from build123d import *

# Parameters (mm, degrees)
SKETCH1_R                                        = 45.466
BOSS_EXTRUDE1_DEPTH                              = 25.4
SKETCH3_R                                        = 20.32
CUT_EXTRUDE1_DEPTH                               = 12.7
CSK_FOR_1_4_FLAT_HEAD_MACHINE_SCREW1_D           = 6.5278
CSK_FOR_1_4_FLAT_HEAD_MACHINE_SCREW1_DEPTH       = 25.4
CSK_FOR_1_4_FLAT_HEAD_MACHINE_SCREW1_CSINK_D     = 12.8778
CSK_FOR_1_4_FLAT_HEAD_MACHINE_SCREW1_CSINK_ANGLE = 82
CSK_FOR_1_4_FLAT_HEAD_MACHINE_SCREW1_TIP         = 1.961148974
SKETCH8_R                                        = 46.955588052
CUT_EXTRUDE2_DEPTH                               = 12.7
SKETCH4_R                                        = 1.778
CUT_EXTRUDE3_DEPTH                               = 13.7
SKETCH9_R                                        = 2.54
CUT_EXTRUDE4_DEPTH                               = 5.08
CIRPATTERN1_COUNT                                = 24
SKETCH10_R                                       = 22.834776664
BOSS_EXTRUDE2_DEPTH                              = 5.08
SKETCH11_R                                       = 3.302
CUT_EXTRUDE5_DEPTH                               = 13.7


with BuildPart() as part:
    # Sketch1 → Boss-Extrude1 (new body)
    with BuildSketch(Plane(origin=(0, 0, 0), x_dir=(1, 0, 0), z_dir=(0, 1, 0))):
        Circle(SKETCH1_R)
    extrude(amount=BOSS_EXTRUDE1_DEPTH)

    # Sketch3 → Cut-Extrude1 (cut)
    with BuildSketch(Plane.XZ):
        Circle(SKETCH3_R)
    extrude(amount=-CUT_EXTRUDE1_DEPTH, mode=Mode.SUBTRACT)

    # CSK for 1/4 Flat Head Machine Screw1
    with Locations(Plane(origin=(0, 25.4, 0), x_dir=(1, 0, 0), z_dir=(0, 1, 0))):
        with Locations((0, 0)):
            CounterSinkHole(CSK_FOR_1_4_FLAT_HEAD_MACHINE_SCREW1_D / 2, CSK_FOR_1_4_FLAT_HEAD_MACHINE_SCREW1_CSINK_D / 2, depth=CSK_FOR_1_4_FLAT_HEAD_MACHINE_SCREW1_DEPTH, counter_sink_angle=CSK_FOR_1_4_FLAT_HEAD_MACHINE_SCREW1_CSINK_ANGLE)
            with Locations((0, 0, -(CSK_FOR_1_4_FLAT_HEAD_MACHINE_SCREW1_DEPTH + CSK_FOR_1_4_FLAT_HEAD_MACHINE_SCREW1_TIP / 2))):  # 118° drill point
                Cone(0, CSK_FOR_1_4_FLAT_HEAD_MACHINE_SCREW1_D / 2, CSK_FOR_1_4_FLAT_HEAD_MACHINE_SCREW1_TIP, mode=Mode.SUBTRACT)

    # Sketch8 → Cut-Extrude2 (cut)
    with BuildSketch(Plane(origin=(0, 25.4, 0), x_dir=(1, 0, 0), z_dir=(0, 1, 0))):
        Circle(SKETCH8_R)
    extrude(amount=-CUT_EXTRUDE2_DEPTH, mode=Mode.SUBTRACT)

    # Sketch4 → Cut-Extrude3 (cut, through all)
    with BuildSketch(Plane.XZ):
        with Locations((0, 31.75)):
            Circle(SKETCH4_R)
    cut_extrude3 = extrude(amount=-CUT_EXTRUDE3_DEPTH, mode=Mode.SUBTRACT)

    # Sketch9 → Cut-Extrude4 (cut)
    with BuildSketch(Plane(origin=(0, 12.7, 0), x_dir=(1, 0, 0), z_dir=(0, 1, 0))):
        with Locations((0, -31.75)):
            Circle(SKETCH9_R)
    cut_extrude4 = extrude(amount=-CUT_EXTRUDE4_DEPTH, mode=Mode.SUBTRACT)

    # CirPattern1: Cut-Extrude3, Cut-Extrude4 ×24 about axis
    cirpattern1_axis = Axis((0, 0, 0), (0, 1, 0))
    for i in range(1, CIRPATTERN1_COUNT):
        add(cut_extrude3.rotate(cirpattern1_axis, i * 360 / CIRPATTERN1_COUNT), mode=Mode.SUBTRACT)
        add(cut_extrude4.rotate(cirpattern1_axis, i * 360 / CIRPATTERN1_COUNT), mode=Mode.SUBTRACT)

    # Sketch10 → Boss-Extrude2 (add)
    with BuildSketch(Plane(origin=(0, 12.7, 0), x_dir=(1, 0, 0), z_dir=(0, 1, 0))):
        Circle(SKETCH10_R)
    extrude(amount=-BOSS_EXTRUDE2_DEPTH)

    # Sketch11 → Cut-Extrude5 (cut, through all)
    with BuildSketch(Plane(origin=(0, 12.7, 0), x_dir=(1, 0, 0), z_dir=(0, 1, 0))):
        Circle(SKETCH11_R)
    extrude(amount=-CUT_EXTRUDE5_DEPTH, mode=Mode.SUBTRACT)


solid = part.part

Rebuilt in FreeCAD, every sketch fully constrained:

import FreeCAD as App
import Part
import Sketcher

V = App.Vector
Q = App.Units.Quantity

doc = App.newDocument("Part")
params = doc.addObject("Spreadsheet::Sheet", "Params")
for row, (alias, value) in enumerate([
    ("sketch1_diameter", "3.58 in"),
    ("pad1_length", "1 in"),
    ("sketch2_diameter", "1.6 in"),
    ("pocket1_length", "0.5 in"),
    ("sketch3_diameter", "0.257 in"),
    ("hole_diameter", "0.257 in"),
    ("hole_depth", "1 in"),
    ("hole_csink_diameter", "0.507 in"),
    ("pocket2_length", "0.5 in"),
    ("sketch5_diameter", "0.14 in"),
    ("sketch6_diameter", "0.2 in"),
    ("pocket4_length", "0.2 in"),
    ("pad2_length", "0.2 in"),
    ("sketch8_diameter", "0.26 in"),
], start=1):
    params.set(f"A{row}", alias)
    params.set(f"B{row}", "=" + value)
    params.setAlias(f"B{row}", alias)

body = doc.addObject("PartDesign::Body", "Body")

# Sketch on XZ plane
sketch1 = doc.addObject("Sketcher::SketchObject", "Sketch")
body.addObject(sketch1)
sketch1.AttachmentSupport = (doc.XZ_Plane, [""])
sketch1.MapMode = "FlatFace"
sketch1.addGeometry(Part.Circle(V(0, 0, 0), V(0, 0, 1), 45), False)
sketch1.addConstraint(Sketcher.Constraint("Coincident", 0, 3, -1, 1))
sketch1.addConstraint(Sketcher.Constraint("Diameter", 0, Q("3.58 in")))
sketch1.setExpression("Constraints[1]", "Params.sketch1_diameter")
pad1 = doc.addObject("PartDesign::Pad", "Pad")
body.addObject(pad1)
pad1.Profile = sketch1
pad1.setExpression("Length", "Params.pad1_length")
pad1.Reversed = True

# Sketch on XZ plane
sketch2 = doc.addObject("Sketcher::SketchObject", "Sketch001")
body.addObject(sketch2)
sketch2.AttachmentSupport = (doc.XZ_Plane, [""])
sketch2.MapMode = "FlatFace"
sketch2.addGeometry(Part.Circle(V(0, 0, 0), V(0, 0, 1), 20), False)
sketch2.addConstraint(Sketcher.Constraint("Coincident", 0, 3, -1, 1))
sketch2.addConstraint(Sketcher.Constraint("Diameter", 0, Q("1.6 in")))
sketch2.setExpression("Constraints[1]", "Params.sketch2_diameter")
pocket1 = doc.addObject("PartDesign::Pocket", "Pocket")
body.addObject(pocket1)
pocket1.Profile = sketch2
pocket1.setExpression("Length", "Params.pocket1_length")

# Sketch on XZ plane
sketch3 = doc.addObject("Sketcher::SketchObject", "Sketch002")
body.addObject(sketch3)
sketch3.AttachmentSupport = (doc.XZ_Plane, [""])
sketch3.MapMode = "FlatFace"
sketch3.AttachmentOffset = App.Placement(V(0, 0, -1 * 25.4), App.Rotation())
sketch3.addGeometry(Part.Circle(V(0, 0, 0), V(0, 0, 1), 3.3), False)
sketch3.addConstraint(Sketcher.Constraint("Coincident", 0, 3, -1, 1))
sketch3.addConstraint(Sketcher.Constraint("Diameter", 0, Q("0.257 in")))
sketch3.setExpression("Constraints[1]", "Params.sketch3_diameter")
doc.recompute()
hole = doc.addObject("PartDesign::Hole", "Hole")
body.addObject(hole)
hole.Profile = sketch3
hole.ThreadType = "None"
hole.setExpression("Diameter", "Params.hole_diameter")
hole.DepthType = "Dimension"
hole.setExpression("Depth", "Params.hole_depth")
hole.DrillPoint = "Angled"
hole.DrillPointAngle = 118
hole.HoleCutType = "Countersink"
hole.setExpression("HoleCutDiameter", "Params.hole_csink_diameter")
hole.HoleCutCountersinkAngle = 82
hole.Reversed = True

# Sketch on XZ plane
sketch4 = doc.addObject("Sketcher::SketchObject", "Sketch003")
body.addObject(sketch4)
sketch4.AttachmentSupport = (doc.XZ_Plane, [""])
sketch4.MapMode = "FlatFace"
sketch4.AttachmentOffset = App.Placement(V(0, 0, -1 * 25.4), App.Rotation())
sketch4.addGeometry(Part.Circle(V(0, 0, 0), V(0, 0, 1), 47), False)
sketch4.addConstraint(Sketcher.Constraint("Coincident", 0, 3, -1, 1))
sketch4.addConstraint(Sketcher.Constraint("Diameter", 0, Q("93.911176 mm")))
pocket2 = doc.addObject("PartDesign::Pocket", "Pocket001")
body.addObject(pocket2)
pocket2.Profile = sketch4
pocket2.setExpression("Length", "Params.pocket2_length")
pocket2.Reversed = True

# Sketch on XZ plane
sketch5 = doc.addObject("Sketcher::SketchObject", "Sketch004")
body.addObject(sketch5)
sketch5.AttachmentSupport = (doc.XZ_Plane, [""])
sketch5.MapMode = "FlatFace"
sketch5.addGeometry(Part.Circle(V(0, 31.8, 0), V(0, 0, 1), 1.8), False)
sketch5.addConstraint(Sketcher.Constraint("PointOnObject", 0, 3, -2))
sketch5.addConstraint(Sketcher.Constraint("Diameter", 0, Q("0.14 in")))
sketch5.addConstraint(Sketcher.Constraint("DistanceY", -1, 1, 0, 3, Q("1.25 in")))
sketch5.setExpression("Constraints[1]", "Params.sketch5_diameter")
pocket3 = doc.addObject("PartDesign::Pocket", "Pocket002")
body.addObject(pocket3)
pocket3.Profile = sketch5
pocket3.Type = "ThroughAll"

# Sketch on XZ plane
sketch6 = doc.addObject("Sketcher::SketchObject", "Sketch005")
body.addObject(sketch6)
sketch6.AttachmentSupport = (doc.XZ_Plane, [""])
sketch6.MapMode = "FlatFace"
sketch6.AttachmentOffset = App.Placement(V(0, 0, -0.5 * 25.4), App.Rotation())
sketch6.addGeometry(Part.Circle(V(0, 31.8, 0), V(0, 0, 1), 2.5), False)
sketch6.addConstraint(Sketcher.Constraint("PointOnObject", 0, 3, -2))
sketch6.addConstraint(Sketcher.Constraint("Diameter", 0, Q("0.2 in")))
sketch6.addConstraint(Sketcher.Constraint("DistanceY", -1, 1, 0, 3, Q("1.25 in")))
sketch6.setExpression("Constraints[1]", "Params.sketch6_diameter")
pocket4 = doc.addObject("PartDesign::Pocket", "Pocket003")
body.addObject(pocket4)
pocket4.Profile = sketch6
pocket4.setExpression("Length", "Params.pocket4_length")
pocket4.Reversed = True
doc.recompute()

polarpattern = doc.addObject("PartDesign::PolarPattern", "PolarPattern")
body.addObject(polarpattern)
polarpattern.Originals = [pocket3, pocket4]
polarpattern.Axis = (doc.Y_Axis, [""])
polarpattern.Angle = 360
polarpattern.Occurrences = 24
body.Tip = polarpattern

# Sketch on XZ plane
sketch7 = doc.addObject("Sketcher::SketchObject", "Sketch006")
body.addObject(sketch7)
sketch7.AttachmentSupport = (doc.XZ_Plane, [""])
sketch7.MapMode = "FlatFace"
sketch7.AttachmentOffset = App.Placement(V(0, 0, -0.5 * 25.4), App.Rotation())
sketch7.addGeometry(Part.Circle(V(0, 0, 0), V(0, 0, 1), 23), False)
sketch7.addConstraint(Sketcher.Constraint("Coincident", 0, 3, -1, 1))
sketch7.addConstraint(Sketcher.Constraint("Diameter", 0, Q("45.669553 mm")))
pad2 = doc.addObject("PartDesign::Pad", "Pad001")
body.addObject(pad2)
pad2.Profile = sketch7
pad2.setExpression("Length", "Params.pad2_length")

# Sketch on XZ plane
sketch8 = doc.addObject("Sketcher::SketchObject", "Sketch007")
body.addObject(sketch8)
sketch8.AttachmentSupport = (doc.XZ_Plane, [""])
sketch8.MapMode = "FlatFace"
sketch8.AttachmentOffset = App.Placement(V(0, 0, -0.5 * 25.4), App.Rotation())
sketch8.addGeometry(Part.Circle(V(0, 0, 0), V(0, 0, 1), 3.3), False)
sketch8.addConstraint(Sketcher.Constraint("Coincident", 0, 3, -1, 1))
sketch8.addConstraint(Sketcher.Constraint("Diameter", 0, Q("0.26 in")))
sketch8.setExpression("Constraints[1]", "Params.sketch8_diameter")
pocket5 = doc.addObject("PartDesign::Pocket", "Pocket004")
body.addObject(pocket5)
pocket5.Profile = sketch8
pocket5.Type = "ThroughAll"
pocket5.Reversed = True

doc.recompute()
